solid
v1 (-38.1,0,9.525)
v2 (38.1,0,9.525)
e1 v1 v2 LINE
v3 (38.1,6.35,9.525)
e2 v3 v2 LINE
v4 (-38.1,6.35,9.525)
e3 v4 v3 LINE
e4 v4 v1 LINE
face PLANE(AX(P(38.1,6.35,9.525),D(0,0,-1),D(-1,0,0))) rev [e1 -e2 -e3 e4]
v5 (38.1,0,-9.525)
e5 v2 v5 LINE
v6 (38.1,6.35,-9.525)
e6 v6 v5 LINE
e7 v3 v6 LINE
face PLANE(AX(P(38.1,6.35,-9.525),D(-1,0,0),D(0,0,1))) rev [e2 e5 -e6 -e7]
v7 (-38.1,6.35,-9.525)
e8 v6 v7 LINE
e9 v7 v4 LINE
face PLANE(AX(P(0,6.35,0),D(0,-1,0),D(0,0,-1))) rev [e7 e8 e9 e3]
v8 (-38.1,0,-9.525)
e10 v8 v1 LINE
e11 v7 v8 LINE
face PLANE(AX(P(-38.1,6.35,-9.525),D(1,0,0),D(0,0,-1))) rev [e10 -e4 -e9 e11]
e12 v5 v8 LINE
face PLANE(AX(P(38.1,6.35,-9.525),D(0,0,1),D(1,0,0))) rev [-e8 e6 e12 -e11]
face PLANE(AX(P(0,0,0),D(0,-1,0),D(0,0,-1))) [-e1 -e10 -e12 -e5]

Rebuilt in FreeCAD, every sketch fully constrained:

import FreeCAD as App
import Part
import Sketcher
from FreeCAD import Vector
Q = App.Units.Quantity

doc = App.newDocument("Part")
body = doc.addObject("PartDesign::Body", "Body")

# Sketch on XZ plane
sketch1 = body.newObject("Sketcher::SketchObject", "Sketch")
sketch1.AttachmentSupport = (doc.getObject("XZ_Plane"), [""])
sketch1.MapMode = "FlatFace"
sketch1.addGeometry(Part.LineSegment(Vector(-38, -10, 0), Vector(-38, 10, 0)), False)
sketch1.addGeometry(Part.LineSegment(Vector(-38, 10, 0), Vector(38, 10, 0)), False)
sketch1.addGeometry(Part.LineSegment(Vector(38, 10, 0), Vector(38, -10, 0)), False)
sketch1.addGeometry(Part.LineSegment(Vector(38, -10, 0), Vector(-38, -10, 0)), False)
sketch1.addConstraint(Sketcher.Constraint("Coincident", 0, 2, 1, 1))
sketch1.addConstraint(Sketcher.Constraint("Coincident", 1, 2, 2, 1))
sketch1.addConstraint(Sketcher.Constraint("Coincident", 2, 2, 3, 1))
sketch1.addConstraint(Sketcher.Constraint("Coincident", 3, 2, 0, 1))
sketch1.addConstraint(Sketcher.Constraint("Vertical", 0))
sketch1.addConstraint(Sketcher.Constraint("Horizontal", 1))
sketch1.addConstraint(Sketcher.Constraint("Vertical", 2))
sketch1.addConstraint(Sketcher.Constraint("Horizontal", 3))
sketch1.addConstraint(Sketcher.Constraint("Symmetric", 0, 2, 2, 2, -1, 1))
sketch1.addConstraint(Sketcher.Constraint("DistanceX", 1, 1, 1, 2, Q("3 in")))
sketch1.addConstraint(Sketcher.Constraint("DistanceY", 0, 1, 0, 2, Q("0.75 in")))
pad1 = body.newObject("PartDesign::Pad", "Pad")
pad1.Profile = sketch1
pad1.Length = Q("0.25 in")
pad1.Reversed = True

doc.recompute()
